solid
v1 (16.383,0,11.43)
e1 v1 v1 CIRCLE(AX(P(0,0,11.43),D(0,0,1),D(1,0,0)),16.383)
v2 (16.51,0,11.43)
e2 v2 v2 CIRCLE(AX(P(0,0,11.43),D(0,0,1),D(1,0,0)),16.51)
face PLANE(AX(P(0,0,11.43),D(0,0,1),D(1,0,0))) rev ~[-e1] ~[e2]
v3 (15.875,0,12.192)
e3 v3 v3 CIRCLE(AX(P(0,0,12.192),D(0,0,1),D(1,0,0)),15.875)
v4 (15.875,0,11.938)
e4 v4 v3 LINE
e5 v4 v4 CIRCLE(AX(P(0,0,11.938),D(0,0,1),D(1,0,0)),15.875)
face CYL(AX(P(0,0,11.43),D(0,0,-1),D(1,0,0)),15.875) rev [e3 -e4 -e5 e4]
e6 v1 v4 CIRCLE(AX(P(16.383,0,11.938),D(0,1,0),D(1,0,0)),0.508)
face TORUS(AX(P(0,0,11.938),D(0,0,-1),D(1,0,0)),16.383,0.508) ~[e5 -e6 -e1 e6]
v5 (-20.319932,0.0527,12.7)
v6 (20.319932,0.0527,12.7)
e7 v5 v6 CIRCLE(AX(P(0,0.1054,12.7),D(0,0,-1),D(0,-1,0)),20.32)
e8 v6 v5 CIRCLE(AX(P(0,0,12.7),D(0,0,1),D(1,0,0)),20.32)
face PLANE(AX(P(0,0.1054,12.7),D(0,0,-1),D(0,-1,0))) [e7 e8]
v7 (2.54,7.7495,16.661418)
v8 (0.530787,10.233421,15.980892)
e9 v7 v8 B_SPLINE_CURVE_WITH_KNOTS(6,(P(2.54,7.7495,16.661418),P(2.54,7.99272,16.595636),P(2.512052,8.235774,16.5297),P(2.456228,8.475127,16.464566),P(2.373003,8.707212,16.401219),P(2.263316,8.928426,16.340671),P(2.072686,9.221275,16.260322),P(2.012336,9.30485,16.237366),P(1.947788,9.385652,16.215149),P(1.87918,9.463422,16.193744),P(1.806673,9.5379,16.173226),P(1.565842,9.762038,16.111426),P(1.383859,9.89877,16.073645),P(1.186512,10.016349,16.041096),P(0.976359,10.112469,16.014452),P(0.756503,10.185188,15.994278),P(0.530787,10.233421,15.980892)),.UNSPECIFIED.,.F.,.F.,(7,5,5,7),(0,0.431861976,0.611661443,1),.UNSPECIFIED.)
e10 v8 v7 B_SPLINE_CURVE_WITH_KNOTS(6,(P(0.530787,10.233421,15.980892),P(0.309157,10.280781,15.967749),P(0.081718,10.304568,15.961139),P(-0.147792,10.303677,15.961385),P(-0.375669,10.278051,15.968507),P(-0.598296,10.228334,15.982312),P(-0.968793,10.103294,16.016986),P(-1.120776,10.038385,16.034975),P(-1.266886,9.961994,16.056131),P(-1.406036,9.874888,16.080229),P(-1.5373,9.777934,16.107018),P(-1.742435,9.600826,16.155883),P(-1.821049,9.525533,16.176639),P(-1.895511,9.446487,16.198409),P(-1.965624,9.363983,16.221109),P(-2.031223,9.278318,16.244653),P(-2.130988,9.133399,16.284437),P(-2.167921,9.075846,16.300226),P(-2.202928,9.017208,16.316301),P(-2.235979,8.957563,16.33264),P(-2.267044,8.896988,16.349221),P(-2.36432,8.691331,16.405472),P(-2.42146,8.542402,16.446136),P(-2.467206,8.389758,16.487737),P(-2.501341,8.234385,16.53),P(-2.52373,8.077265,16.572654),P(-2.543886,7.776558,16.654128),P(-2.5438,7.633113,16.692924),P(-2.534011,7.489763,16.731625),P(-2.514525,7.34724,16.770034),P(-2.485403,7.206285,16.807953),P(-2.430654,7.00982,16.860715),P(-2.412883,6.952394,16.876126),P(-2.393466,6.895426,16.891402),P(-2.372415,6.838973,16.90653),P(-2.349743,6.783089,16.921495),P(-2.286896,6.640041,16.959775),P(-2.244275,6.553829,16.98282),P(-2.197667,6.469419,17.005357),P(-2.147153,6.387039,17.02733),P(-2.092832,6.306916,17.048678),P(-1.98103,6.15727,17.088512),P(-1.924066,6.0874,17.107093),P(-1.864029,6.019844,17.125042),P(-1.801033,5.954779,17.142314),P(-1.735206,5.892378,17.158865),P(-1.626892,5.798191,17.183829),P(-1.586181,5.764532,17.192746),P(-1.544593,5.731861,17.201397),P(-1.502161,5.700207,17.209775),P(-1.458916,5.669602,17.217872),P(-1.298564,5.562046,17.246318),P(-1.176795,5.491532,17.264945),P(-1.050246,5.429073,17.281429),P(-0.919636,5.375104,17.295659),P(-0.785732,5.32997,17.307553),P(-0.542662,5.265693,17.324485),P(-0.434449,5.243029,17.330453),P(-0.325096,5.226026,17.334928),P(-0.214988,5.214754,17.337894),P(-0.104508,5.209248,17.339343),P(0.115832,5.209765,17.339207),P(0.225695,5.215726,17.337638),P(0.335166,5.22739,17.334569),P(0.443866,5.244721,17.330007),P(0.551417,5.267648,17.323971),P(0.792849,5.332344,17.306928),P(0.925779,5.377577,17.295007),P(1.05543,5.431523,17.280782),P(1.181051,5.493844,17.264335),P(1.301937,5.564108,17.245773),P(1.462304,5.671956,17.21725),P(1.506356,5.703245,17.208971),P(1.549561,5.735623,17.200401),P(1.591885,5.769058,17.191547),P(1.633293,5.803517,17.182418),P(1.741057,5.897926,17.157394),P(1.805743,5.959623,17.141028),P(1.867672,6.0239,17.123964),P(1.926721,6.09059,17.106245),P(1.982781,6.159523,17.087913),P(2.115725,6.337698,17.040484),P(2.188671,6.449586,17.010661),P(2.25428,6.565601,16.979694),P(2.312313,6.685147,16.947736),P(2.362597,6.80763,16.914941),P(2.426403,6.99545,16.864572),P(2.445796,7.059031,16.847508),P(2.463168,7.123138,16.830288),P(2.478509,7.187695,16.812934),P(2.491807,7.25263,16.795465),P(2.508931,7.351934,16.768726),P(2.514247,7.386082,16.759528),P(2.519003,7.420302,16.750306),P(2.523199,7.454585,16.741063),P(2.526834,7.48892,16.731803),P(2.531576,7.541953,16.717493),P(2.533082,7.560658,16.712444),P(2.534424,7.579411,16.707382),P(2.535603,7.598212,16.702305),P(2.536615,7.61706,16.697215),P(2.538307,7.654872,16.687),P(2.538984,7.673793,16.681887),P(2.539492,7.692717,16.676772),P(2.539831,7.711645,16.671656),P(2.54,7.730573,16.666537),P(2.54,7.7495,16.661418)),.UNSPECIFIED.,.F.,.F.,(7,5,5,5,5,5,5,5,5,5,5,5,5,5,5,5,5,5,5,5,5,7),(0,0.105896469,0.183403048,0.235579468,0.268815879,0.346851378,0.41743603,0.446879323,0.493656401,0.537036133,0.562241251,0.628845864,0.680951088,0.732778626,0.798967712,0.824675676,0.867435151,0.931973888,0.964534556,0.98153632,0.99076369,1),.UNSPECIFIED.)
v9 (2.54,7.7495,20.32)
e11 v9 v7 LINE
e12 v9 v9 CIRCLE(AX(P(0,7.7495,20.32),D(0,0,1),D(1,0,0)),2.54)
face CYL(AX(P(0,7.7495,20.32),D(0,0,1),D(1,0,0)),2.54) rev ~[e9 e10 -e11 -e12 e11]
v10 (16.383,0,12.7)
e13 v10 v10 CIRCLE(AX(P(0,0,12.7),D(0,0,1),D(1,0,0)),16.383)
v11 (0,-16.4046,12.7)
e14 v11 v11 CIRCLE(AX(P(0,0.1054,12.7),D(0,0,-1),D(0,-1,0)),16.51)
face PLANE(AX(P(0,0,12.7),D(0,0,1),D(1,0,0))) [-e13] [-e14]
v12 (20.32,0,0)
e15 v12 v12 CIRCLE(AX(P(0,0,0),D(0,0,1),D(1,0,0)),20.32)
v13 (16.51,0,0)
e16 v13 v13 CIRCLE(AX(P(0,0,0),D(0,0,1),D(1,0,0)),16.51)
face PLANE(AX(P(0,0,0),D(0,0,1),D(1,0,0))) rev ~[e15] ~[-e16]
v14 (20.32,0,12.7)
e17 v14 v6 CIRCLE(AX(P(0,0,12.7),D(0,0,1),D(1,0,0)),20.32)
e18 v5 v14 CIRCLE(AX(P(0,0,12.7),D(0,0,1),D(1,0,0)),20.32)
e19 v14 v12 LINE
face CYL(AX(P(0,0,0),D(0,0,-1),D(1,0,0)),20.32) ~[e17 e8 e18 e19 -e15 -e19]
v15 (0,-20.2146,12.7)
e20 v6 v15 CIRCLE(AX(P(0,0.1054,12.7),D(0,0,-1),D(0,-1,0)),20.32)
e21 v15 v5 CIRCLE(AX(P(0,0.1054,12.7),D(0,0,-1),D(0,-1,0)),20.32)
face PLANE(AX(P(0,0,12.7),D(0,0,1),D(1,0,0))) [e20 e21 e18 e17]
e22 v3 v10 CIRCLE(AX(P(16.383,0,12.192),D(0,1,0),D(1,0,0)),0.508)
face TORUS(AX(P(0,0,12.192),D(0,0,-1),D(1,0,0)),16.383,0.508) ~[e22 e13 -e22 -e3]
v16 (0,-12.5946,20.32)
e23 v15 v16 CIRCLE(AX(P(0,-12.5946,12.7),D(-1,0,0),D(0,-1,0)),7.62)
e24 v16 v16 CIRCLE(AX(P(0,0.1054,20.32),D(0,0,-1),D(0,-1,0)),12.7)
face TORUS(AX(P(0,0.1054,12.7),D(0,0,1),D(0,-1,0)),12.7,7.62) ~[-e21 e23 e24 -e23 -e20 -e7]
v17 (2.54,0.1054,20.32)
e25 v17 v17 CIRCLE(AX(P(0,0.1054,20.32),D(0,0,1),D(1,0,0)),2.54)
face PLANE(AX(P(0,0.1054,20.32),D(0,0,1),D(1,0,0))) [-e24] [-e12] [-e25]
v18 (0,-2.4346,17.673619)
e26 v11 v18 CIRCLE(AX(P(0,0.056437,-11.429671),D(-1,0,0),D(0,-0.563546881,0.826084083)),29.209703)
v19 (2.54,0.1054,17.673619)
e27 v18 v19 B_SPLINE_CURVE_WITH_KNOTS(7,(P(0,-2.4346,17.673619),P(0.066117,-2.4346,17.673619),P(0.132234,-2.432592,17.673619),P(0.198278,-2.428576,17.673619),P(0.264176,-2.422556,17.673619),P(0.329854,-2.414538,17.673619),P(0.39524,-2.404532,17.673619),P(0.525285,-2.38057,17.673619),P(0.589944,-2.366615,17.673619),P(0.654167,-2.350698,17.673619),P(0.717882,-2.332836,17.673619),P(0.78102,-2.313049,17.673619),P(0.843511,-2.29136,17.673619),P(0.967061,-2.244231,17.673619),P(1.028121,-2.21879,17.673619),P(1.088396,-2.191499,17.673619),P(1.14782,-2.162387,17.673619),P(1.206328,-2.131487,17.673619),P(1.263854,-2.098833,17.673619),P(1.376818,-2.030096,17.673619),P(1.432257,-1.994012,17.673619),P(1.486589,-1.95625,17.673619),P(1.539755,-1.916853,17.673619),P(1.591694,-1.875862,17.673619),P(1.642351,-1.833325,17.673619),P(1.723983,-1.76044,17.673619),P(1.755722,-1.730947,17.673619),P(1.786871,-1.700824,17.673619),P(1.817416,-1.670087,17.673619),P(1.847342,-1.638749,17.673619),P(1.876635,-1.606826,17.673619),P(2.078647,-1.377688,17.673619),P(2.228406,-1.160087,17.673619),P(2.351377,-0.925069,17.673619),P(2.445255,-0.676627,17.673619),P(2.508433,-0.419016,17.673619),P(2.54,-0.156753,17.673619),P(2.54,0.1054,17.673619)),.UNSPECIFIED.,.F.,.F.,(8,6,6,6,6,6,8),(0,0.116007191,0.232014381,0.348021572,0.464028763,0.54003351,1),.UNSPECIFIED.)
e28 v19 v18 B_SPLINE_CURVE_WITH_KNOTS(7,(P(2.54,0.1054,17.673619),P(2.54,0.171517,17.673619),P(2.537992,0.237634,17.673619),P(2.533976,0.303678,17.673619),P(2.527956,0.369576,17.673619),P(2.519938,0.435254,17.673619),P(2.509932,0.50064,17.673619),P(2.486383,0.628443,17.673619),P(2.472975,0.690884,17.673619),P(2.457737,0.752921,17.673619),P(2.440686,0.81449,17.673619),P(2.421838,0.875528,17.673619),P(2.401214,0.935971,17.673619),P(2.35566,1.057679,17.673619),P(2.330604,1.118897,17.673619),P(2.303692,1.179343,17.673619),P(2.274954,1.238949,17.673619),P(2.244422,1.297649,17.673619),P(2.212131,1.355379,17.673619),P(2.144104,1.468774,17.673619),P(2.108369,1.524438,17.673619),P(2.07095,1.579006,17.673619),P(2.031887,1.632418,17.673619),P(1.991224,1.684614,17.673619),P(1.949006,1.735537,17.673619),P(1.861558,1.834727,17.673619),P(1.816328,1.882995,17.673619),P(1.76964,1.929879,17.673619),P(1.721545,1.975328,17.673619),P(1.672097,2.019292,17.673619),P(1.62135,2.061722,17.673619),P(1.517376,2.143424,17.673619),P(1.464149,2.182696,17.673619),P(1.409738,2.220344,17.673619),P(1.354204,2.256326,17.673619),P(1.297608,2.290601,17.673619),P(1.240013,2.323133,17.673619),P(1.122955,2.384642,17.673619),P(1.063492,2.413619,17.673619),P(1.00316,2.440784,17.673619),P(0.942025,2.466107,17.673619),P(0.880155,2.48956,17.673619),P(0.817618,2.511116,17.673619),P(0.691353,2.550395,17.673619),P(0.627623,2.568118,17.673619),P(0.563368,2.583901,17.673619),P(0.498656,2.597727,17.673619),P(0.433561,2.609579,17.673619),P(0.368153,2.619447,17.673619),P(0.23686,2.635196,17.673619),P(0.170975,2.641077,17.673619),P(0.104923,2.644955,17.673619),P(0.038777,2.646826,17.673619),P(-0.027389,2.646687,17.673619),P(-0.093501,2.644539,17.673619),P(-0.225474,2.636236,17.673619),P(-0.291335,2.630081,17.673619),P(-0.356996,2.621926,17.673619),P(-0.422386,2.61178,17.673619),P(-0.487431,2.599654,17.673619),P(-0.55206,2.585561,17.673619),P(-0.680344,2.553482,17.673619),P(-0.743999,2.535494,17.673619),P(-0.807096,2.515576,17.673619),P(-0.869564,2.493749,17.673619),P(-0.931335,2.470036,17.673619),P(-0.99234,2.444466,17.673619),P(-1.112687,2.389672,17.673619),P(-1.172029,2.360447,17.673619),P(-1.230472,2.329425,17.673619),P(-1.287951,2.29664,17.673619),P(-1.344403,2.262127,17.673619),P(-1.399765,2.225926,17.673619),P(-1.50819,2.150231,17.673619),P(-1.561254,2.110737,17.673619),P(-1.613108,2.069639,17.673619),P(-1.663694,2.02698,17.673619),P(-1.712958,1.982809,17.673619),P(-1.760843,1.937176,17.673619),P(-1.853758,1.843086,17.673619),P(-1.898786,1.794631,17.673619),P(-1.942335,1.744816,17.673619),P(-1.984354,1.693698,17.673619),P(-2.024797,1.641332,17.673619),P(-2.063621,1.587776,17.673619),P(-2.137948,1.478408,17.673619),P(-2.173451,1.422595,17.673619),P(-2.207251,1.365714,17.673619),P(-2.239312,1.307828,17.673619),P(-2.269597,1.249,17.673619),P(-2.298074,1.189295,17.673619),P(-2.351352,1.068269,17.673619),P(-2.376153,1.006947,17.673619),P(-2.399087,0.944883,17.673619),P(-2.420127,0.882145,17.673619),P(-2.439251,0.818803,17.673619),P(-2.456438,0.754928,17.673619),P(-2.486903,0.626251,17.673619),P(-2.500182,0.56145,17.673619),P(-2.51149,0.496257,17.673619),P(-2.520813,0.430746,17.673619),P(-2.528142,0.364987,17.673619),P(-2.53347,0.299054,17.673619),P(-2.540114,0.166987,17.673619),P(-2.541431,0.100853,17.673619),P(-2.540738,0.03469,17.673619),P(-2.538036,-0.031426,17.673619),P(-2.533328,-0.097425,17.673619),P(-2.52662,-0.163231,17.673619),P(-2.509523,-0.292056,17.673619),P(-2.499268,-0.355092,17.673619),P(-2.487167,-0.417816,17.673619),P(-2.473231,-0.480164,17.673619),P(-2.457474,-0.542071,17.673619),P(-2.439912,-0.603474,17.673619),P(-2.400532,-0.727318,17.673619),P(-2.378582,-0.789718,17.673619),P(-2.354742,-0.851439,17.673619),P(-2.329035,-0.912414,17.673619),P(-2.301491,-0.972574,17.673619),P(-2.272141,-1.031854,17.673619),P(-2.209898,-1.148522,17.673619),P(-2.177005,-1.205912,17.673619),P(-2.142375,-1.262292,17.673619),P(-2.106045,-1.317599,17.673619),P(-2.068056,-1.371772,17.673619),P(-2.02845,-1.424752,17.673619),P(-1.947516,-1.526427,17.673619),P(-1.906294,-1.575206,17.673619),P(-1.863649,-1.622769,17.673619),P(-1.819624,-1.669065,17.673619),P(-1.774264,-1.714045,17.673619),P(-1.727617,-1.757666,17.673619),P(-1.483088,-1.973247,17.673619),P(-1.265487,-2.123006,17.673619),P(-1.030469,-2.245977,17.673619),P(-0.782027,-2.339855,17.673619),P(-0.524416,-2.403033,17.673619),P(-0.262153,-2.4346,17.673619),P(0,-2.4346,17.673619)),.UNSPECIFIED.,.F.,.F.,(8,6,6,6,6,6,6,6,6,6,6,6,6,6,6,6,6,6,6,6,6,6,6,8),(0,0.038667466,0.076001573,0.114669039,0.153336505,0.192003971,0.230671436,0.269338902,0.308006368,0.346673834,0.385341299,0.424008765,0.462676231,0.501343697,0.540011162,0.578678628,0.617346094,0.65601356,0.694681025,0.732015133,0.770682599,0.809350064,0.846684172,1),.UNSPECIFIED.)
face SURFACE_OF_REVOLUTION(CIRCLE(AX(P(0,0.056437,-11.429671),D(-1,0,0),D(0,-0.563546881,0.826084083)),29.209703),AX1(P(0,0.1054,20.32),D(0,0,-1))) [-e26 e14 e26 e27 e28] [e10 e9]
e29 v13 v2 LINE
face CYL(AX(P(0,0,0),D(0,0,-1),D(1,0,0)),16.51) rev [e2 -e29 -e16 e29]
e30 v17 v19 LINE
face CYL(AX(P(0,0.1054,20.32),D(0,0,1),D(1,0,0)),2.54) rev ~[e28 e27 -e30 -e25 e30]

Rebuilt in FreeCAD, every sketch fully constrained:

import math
import FreeCAD as App
import Part
import Sketcher
Q = App.Units.Quantity


def edges_at(feature, points):
    """Names of the edges that pass closest to the given points."""
    edges = feature.Shape.Edges
    near = lambda p: min(range(len(edges)), key=lambda i: edges[i].distToShape(Part.Vertex(*p))[0])
    return sorted({f"Edge{near(p) + 1}" for p in points})

doc = App.newDocument("Part")
body = doc.addObject("PartDesign::Body", "Body")

# Sketch on XY plane
sketch1 = body.newObject("Sketcher::SketchObject", "Sketch")
sketch1.AttachmentSupport = (doc.getObject("XY_Plane"), [""])
sketch1.MapMode = "FlatFace"
sketch1.addGeometry([
    Part.Circle(App.Vector(0, 0, 0), App.Vector(0, 0, 1), 20),
    Part.Circle(App.Vector(0, 0, 0), App.Vector(0, 0, 1), 17),
], False)
sketch1.addConstraint([
    Sketcher.Constraint("Coincident", 0, 3, -1, 1),
    Sketcher.Constraint("Coincident", 1, 3, -1, 1),
    Sketcher.Constraint("Diameter", 0, Q("1.6 in")),
    Sketcher.Constraint("Diameter", 1, Q("1.3 in")),
])
pad1 = body.newObject("PartDesign::Pad", "Pad")
pad1.Profile = sketch1
pad1.Length = Q("0.45 in")

# Sketch on XY plane
sketch2 = body.newObject("Sketcher::SketchObject", "Sketch001")
sketch2.AttachmentSupport = (doc.getObject("XY_Plane"), [""])
sketch2.MapMode = "FlatFace"
sketch2.AttachmentOffset = App.Placement(App.Vector(0, 0, 0.45 * 25.4), App.Rotation())
sketch2.addGeometry([
    Part.Circle(App.Vector(0, 0, 0), App.Vector(0, 0, 1), 20),
    Part.Circle(App.Vector(0, 0, 0), App.Vector(0, 0, 1), 16),
], False)
sketch2.addConstraint([
    Sketcher.Constraint("Coincident", 0, 3, -1, 1),
    Sketcher.Constraint("Coincident", 1, 3, -1, 1),
    Sketcher.Constraint("Diameter", 1, Q("1.25 in")),
    Sketcher.Constraint("Diameter", 0, Q("1.6 in")),
])
pad2 = body.newObject("PartDesign::Pad", "Pad001")
pad2.Profile = sketch2
pad2.Length = Q("0.05 in")
doc.recompute()

fillet = body.newObject("PartDesign::Fillet", "Fillet")
fillet.Base = (pad2, edges_at(pad2, [(-15.875, 0, 11.43)]))
fillet.Radius = Q("0.02 in")
doc.recompute()

fillet2 = body.newObject("PartDesign::Fillet", "Fillet001")
fillet2.Base = (fillet, edges_at(fillet, [(-15.875, 0, 12.7)]))
fillet2.Radius = Q("0.02 in")

# Sketch on YZ plane
sketch3 = body.newObject("Sketcher::SketchObject", "Sketch002")
sketch3.AttachmentSupport = (doc.getObject("YZ_Plane"), [""])
sketch3.MapMode = "FlatFace"
sketch3.addGeometry([
    Part.LineSegment(App.Vector(-16.4, 12.7, 0), App.Vector(-20.2, 12.7, 0)),  # 0
    Part.ArcOfCircle(Part.Circle(App.Vector(-12.6, 12.7, 0), App.Vector(0, 0, 1), 7.6), math.radians(90), math.radians(180)),  # 1
    Part.LineSegment(App.Vector(-12.6, 20.3, 0), App.Vector(-1.2, 20.3, 0)),  # 2
    Part.LineSegment(App.Vector(-1.2, 20.3, 0), App.Vector(-1.2, 17.8, 0)),  # 3
    Part.ArcOfCircle(Part.Circle(App.Vector(0.1, -11.4, 0), App.Vector(0, 0, 1), 29.2), math.radians(92), math.radians(124)),  # 4
], False)
sketch3.addGeometry(Part.LineSegment(App.Vector(0.1, 20.3, 0), App.Vector(0.1, -11.4, 0)), True)  # axis
sketch3.addConstraint([
    Sketcher.Constraint("Coincident", 0, 2, 1, 2),
    Sketcher.Constraint("Tangent", 1, 1, 2, 1),
    Sketcher.Constraint("Coincident", 2, 2, 3, 1),
    Sketcher.Constraint("Coincident", 3, 2, 4, 1),
    Sketcher.Constraint("Coincident", 4, 2, 0, 1),
    Sketcher.Constraint("Horizontal", 0),
    Sketcher.Constraint("Horizontal", 2),
    Sketcher.Constraint("Vertical", 3),
    Sketcher.Constraint("Vertical", 5),
    Sketcher.Constraint("Horizontal", 1, 3, 0, 2),
    Sketcher.Constraint("Horizontal", 2, 2, 5, 1),
    Sketcher.Constraint("Horizontal", 4, 3, 5, 2),
    Sketcher.Constraint("Radius", 1, Q("0.3 in")),
    Sketcher.Constraint("Radius", 4, Q("1.15 in")),
    Sketcher.Constraint("DistanceX", 0, 2, 0, 1, Q("0.15 in")),
    Sketcher.Constraint("DistanceY", -1, 1, 1, 1, Q("0.8 in")),
    Sketcher.Constraint("DistanceX", 0, 2, 5, 2, Q("0.8 in")),
    Sketcher.Constraint("DistanceX", 2, 1, 2, 2, Q("0.45 in")),
    Sketcher.Constraint("DistanceY", 5, 2, 5, 1, Q("1.25 in")),
    Sketcher.Constraint("DistanceX", 1, 3, -1, 1, 12.5946),
])
revolution = body.newObject("PartDesign::Revolution", "Revolution")
revolution.Profile = sketch3
revolution.ReferenceAxis = (sketch3, ["Axis0"])
revolution.Angle = 360

# Sketch on XY plane
sketch4 = body.newObject("Sketcher::SketchObject", "Sketch003")
sketch4.AttachmentSupport = (doc.getObject("XY_Plane"), [""])
sketch4.MapMode = "FlatFace"
sketch4.AttachmentOffset = App.Placement(App.Vector(0, 0, 0.8 * 25.4), App.Rotation())
sketch4.addGeometry(Part.Circle(App.Vector(0, 0.1, 0), App.Vector(0, 0, 1), 1.3), False)
sketch4.addConstraint([
    Sketcher.Constraint("PointOnObject", 0, 3, -2),
    Sketcher.Constraint("Diameter", 0, Q("0.1 in")),
    Sketcher.Constraint("DistanceY", -1, 1, 0, 3, 0.1054),
])
pad3 = body.newObject("PartDesign::Pad", "Pad002")
pad3.Profile = sketch4
pad3.Length = Q("0.101 in")
pad3.Reversed = True

# Sketch on XY plane
sketch5 = body.newObject("Sketcher::SketchObject", "Sketch004")
sketch5.AttachmentSupport = (doc.getObject("XY_Plane"), [""])
sketch5.MapMode = "FlatFace"
sketch5.AttachmentOffset = App.Placement(App.Vector(0, 0, 0.8 * 25.4), App.Rotation())
sketch5.addGeometry([
    Part.Circle(App.Vector(0, 0.1, 0), App.Vector(0, 0, 1), 2.5),
    Part.Circle(App.Vector(0, 7.7, 0), App.Vector(0, 0, 1), 2.5),
], False)
sketch5.addConstraint([
    Sketcher.Constraint("Equal", 0, 1),
    Sketcher.Constraint("PointOnObject", 0, 3, -2),
    Sketcher.Constraint("PointOnObject", 1, 3, -2),
    Sketcher.Constraint("Diameter", 0, Q("0.2 in")),
    Sketcher.Constraint("DistanceY", -1, 1, 1, 3, Q("0.3051 in")),
    Sketcher.Constraint("DistanceY", -1, 1, 0, 3, 0.1054),
])
pocket1 = body.newObject("PartDesign::Pocket", "Pocket")
pocket1.Profile = sketch5
pocket1.Length = Q("1 in")

doc.recompute()
